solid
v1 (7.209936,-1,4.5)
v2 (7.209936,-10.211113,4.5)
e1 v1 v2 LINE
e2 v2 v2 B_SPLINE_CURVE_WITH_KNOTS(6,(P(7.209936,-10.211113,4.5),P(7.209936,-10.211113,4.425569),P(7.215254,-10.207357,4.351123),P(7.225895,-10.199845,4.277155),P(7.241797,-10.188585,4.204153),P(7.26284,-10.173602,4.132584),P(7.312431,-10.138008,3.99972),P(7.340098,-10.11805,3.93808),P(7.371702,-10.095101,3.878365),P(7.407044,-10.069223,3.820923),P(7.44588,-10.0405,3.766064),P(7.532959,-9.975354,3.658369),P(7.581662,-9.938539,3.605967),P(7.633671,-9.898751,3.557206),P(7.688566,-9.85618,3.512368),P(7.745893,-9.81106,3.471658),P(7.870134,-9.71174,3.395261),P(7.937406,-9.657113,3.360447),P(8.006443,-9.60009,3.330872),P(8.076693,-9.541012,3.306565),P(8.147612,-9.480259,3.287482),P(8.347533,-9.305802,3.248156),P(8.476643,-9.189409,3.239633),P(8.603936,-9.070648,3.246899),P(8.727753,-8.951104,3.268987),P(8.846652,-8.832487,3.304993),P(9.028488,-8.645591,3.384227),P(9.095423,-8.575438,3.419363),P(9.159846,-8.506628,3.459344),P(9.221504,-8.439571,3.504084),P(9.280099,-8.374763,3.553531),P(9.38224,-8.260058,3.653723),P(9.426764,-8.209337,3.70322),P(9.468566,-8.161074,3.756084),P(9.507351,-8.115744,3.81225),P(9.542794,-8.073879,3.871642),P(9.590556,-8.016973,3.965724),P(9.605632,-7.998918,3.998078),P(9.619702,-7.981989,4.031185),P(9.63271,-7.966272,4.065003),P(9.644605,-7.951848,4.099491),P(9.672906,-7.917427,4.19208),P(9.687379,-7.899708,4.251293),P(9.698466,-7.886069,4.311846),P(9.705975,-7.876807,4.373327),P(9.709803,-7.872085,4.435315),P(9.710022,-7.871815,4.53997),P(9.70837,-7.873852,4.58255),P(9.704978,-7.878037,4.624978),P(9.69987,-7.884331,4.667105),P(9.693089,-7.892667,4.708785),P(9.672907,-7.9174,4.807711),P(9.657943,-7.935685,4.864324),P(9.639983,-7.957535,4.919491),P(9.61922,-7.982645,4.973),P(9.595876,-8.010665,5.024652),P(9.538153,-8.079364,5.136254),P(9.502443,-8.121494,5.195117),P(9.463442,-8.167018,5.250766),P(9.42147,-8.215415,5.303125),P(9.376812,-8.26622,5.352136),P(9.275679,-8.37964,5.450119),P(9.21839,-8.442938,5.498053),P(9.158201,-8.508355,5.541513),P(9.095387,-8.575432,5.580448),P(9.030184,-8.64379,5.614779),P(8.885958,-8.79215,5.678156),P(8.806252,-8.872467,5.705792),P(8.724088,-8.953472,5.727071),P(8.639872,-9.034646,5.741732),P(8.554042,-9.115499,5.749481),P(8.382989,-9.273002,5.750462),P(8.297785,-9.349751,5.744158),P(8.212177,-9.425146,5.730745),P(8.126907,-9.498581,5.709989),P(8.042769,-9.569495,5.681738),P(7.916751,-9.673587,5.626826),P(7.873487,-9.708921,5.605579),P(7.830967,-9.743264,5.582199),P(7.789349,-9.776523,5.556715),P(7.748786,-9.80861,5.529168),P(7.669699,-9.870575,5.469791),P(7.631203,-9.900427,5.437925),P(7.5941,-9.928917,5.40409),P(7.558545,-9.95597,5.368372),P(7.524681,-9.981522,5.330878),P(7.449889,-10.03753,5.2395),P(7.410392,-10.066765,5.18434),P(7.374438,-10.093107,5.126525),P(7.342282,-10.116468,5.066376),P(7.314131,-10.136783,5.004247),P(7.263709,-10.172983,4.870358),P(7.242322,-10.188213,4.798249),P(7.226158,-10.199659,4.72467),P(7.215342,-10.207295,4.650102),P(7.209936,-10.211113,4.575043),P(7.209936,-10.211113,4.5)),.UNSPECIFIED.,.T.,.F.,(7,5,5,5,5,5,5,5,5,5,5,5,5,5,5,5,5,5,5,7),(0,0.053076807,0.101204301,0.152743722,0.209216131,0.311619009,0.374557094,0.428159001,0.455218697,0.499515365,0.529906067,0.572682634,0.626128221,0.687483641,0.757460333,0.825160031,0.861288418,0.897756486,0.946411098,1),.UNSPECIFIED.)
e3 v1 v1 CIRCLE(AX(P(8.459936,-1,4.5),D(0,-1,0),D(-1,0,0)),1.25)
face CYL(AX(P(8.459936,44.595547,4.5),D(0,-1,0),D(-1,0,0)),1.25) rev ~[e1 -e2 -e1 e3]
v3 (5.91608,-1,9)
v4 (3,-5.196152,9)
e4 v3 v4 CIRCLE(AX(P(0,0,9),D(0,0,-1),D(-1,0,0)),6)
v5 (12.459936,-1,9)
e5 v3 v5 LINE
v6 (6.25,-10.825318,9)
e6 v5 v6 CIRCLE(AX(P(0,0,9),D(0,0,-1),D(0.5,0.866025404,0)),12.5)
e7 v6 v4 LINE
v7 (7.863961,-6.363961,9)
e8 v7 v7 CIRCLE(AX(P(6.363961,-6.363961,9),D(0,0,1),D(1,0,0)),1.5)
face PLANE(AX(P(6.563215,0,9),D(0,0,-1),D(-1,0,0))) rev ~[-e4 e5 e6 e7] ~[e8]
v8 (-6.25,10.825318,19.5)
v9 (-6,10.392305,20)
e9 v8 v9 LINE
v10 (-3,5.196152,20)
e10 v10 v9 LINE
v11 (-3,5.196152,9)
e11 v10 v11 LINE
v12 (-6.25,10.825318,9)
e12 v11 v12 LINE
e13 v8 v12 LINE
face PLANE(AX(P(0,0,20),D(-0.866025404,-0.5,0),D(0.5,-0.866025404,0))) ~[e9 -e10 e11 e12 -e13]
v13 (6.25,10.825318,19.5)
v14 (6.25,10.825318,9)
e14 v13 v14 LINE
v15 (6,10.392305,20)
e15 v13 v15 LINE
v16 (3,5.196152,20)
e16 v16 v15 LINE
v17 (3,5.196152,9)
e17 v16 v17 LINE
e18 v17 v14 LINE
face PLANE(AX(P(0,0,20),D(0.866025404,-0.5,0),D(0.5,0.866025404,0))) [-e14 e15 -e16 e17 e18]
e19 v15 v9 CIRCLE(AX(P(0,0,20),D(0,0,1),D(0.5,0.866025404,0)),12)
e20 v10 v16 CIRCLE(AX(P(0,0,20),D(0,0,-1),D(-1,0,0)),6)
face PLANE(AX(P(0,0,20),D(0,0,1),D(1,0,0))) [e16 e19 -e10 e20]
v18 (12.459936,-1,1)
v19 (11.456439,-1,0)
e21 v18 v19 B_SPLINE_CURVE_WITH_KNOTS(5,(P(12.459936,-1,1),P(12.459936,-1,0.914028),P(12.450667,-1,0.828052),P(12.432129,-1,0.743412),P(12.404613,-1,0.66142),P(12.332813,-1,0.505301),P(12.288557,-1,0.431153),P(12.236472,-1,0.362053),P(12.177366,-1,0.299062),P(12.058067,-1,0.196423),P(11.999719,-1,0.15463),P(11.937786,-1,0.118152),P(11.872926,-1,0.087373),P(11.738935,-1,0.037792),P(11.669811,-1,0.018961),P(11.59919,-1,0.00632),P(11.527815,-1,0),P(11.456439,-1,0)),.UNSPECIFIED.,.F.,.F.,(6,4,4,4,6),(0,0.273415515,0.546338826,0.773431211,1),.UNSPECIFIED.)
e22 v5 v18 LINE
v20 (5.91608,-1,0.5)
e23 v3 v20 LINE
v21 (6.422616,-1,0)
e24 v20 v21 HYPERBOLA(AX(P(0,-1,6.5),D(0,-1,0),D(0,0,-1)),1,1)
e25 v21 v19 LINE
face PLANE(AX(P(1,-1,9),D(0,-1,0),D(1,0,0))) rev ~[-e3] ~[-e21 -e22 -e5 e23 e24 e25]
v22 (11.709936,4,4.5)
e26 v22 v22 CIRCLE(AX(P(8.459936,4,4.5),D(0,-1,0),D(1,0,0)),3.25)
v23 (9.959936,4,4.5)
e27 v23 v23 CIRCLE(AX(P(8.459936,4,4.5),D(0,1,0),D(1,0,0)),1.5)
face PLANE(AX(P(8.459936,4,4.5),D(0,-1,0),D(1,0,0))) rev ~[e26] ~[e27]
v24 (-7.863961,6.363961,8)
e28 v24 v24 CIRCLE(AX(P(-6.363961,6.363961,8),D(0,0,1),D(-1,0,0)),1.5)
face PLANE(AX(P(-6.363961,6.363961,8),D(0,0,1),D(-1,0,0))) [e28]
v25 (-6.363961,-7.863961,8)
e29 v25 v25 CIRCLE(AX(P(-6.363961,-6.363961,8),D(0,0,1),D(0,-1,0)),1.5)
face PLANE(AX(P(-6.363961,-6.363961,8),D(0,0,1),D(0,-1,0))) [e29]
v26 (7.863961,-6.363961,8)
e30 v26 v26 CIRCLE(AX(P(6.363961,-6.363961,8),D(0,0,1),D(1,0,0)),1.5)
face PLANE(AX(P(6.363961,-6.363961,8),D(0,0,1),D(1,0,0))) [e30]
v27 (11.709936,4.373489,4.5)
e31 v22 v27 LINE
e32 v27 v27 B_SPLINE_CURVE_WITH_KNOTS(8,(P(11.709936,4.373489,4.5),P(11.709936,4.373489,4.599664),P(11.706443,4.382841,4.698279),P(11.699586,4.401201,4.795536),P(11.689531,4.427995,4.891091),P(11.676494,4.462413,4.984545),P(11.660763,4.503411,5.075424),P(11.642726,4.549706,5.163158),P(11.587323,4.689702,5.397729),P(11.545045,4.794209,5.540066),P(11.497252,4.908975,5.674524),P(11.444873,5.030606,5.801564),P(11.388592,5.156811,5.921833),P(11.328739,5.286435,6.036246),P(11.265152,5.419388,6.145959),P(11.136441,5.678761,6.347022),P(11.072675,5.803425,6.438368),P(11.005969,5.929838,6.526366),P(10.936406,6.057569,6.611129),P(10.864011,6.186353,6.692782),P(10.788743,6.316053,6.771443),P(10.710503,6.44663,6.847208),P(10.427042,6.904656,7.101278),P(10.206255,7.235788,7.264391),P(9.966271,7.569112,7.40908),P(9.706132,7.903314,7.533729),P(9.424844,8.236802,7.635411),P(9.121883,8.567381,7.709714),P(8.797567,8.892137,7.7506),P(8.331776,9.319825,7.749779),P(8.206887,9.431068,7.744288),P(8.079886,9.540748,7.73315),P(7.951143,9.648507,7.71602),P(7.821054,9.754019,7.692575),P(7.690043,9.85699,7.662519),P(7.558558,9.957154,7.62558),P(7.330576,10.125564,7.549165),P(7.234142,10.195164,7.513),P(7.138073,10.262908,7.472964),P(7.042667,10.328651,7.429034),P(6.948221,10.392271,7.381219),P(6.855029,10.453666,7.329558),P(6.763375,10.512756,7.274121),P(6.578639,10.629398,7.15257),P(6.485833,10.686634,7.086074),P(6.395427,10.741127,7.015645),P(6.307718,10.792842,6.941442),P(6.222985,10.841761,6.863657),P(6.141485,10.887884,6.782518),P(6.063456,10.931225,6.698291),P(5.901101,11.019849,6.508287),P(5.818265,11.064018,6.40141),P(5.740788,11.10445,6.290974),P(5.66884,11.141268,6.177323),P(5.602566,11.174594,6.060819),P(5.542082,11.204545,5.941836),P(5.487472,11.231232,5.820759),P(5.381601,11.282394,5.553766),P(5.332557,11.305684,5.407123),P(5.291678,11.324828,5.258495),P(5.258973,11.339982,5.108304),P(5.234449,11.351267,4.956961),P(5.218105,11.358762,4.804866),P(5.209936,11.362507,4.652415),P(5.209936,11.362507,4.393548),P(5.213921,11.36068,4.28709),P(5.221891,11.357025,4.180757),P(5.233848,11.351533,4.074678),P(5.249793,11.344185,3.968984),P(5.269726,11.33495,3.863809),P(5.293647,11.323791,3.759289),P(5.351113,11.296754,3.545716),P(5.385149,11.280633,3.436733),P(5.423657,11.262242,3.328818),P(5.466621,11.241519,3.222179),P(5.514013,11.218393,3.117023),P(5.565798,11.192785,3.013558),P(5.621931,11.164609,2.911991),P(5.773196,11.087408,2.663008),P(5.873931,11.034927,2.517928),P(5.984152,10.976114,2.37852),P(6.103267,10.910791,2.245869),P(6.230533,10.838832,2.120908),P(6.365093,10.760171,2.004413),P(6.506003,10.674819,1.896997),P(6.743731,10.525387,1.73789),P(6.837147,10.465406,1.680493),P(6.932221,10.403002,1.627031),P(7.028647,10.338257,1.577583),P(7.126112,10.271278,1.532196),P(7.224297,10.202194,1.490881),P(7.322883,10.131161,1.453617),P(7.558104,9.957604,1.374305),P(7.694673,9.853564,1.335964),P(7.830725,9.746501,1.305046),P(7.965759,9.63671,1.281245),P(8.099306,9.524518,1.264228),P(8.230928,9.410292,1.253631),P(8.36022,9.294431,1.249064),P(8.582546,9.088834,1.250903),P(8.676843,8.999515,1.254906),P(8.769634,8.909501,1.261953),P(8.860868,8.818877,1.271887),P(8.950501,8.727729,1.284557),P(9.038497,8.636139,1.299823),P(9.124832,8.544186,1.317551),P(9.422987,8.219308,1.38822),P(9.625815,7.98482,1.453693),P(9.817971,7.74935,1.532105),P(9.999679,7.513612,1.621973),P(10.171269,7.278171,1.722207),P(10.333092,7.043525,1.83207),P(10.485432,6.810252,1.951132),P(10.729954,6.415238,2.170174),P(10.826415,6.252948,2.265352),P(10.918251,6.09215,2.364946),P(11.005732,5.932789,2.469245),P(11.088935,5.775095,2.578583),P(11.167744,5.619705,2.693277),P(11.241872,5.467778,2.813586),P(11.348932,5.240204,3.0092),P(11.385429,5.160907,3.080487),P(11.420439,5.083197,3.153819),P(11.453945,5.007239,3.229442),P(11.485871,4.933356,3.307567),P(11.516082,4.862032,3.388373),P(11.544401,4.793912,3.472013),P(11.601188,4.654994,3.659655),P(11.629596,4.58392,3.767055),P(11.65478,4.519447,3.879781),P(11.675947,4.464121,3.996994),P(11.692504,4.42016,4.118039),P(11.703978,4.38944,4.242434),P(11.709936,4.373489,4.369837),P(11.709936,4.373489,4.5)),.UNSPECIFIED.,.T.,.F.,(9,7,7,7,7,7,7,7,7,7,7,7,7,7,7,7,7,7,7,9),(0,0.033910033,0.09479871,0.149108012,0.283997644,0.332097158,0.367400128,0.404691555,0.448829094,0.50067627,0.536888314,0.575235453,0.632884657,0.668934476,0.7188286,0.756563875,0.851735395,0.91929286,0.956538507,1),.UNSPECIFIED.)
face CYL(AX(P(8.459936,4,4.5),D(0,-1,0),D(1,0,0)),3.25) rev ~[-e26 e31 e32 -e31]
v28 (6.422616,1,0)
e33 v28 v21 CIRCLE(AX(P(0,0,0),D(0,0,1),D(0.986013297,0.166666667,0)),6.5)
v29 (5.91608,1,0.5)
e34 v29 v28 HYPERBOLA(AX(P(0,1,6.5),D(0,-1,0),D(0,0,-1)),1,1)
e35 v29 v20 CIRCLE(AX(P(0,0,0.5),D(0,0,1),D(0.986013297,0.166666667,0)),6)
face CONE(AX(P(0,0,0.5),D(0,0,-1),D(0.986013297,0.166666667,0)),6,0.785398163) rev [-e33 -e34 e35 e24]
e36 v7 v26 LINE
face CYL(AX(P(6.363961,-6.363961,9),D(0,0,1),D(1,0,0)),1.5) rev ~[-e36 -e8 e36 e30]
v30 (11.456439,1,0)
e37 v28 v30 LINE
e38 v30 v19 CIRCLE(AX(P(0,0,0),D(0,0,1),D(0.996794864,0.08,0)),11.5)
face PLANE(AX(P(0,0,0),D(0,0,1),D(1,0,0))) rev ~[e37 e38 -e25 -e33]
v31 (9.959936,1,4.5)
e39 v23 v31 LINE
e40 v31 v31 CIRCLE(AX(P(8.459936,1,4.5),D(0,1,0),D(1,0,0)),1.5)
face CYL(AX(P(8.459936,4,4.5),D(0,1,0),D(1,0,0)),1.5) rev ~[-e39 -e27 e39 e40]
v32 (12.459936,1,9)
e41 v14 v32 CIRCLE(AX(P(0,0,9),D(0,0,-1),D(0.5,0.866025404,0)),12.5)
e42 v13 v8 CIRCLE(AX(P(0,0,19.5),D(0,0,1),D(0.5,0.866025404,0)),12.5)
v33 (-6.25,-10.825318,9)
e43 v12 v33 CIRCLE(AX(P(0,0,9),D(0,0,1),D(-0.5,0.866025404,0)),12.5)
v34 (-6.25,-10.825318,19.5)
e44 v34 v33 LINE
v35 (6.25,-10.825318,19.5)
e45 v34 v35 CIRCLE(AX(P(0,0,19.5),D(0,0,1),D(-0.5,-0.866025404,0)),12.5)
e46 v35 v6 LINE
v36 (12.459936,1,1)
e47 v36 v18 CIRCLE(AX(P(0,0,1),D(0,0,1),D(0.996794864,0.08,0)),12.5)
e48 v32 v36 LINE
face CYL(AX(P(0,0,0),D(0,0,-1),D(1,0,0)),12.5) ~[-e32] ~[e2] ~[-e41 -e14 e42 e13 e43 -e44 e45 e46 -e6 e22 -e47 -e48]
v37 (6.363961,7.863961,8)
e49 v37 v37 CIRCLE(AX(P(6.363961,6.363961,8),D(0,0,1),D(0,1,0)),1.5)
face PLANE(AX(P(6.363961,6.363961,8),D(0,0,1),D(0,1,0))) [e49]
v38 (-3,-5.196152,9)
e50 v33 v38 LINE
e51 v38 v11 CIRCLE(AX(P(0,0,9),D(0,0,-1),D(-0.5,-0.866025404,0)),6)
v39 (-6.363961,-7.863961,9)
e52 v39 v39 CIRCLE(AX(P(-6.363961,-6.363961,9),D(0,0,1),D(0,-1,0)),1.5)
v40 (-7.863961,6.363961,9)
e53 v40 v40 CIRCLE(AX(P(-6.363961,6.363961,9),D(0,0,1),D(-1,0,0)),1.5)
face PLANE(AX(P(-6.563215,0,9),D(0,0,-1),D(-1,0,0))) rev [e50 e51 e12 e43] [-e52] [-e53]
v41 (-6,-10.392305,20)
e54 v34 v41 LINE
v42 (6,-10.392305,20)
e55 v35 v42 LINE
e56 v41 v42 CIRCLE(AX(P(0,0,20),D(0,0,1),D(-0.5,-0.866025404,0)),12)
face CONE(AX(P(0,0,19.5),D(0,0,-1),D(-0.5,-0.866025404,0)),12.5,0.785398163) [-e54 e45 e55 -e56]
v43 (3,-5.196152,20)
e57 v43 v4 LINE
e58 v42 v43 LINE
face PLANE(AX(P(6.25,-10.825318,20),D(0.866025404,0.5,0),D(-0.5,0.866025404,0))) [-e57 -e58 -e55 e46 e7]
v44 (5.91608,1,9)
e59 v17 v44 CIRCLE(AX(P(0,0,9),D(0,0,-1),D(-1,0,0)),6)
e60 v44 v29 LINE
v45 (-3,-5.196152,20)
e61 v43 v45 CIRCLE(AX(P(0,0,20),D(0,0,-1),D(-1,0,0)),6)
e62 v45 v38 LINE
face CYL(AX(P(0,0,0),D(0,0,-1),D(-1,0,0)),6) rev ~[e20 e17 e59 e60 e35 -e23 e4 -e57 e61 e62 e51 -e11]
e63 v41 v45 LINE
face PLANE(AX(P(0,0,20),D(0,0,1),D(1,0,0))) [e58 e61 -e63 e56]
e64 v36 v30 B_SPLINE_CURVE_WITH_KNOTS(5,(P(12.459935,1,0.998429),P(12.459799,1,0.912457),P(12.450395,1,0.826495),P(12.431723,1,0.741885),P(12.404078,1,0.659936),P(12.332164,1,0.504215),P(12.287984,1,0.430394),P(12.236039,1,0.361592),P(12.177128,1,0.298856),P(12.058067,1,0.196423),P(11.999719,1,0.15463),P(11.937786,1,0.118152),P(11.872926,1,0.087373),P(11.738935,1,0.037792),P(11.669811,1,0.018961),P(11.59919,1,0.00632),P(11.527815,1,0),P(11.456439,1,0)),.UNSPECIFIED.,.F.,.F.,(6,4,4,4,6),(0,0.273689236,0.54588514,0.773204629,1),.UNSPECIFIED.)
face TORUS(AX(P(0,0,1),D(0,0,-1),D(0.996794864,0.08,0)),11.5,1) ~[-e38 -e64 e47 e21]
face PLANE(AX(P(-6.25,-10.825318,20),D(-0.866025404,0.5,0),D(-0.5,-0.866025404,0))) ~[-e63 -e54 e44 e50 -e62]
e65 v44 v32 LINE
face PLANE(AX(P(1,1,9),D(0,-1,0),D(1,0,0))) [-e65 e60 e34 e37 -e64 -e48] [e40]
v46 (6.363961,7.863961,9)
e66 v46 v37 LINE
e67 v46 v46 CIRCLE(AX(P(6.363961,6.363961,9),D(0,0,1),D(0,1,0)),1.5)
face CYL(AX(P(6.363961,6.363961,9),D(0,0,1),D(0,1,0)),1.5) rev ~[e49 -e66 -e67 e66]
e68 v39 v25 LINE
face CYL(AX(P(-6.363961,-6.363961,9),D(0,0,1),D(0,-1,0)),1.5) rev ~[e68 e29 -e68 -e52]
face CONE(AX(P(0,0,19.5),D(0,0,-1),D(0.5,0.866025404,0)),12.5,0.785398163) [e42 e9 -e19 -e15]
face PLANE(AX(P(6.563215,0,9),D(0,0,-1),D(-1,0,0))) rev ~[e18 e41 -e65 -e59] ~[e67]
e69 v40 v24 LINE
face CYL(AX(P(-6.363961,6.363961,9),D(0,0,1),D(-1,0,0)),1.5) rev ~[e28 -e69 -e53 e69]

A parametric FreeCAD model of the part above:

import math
import FreeCAD as App
import Part
import Sketcher
from FreeCAD import Vector
Q = App.Units.Quantity


def edges_at(feature, points):
    """Names of the edges that pass closest to the given points."""
    edges = feature.Shape.Edges
    near = lambda p: min(range(len(edges)), key=lambda i: edges[i].distToShape(Part.Vertex(*p))[0])
    return sorted({f"Edge{near(p) + 1}" for p in points})

doc = App.newDocument("Part")
body = doc.addObject("PartDesign::Body", "Body")

sketch1 = body.newObject("Sketcher::SketchObject", "Sketch")
sketch1.AttachmentSupport = (doc.getObject("XY_Plane"), [""])
sketch1.MapMode = "FlatFace"
sketch1.addGeometry(Part.Circle(Vector(0, 0, 0), Vector(0, 0, 1), 12), False)
sketch1.addConstraint([
    Sketcher.Constraint("Coincident", 0, 3, -1, 1),
    Sketcher.Constraint("Diameter", 0, Q("25 mm")),
])
pad1 = body.newObject("PartDesign::Pad", "Pad")
pad1.Profile = sketch1
pad1.Length = 20

sketch2 = body.newObject("Sketcher::SketchObject", "Sketch001")
sketch2.AttachmentSupport = (doc.getObject("XY_Plane"), [""])
sketch2.MapMode = "FlatFace"
sketch2.AttachmentOffset = App.Placement(Vector(0, 0, 20), App.Rotation())
sketch2.addGeometry([
    Part.LineSegment(Vector(6, 11, 0), Vector(0, 0, 0)),
    Part.LineSegment(Vector(0, 0, 0), Vector(6, -11, 0)),
    Part.ArcOfCircle(Part.Circle(Vector(0, 0, 0), Vector(0, 0, 1), 12), math.radians(-60), math.radians(60)),
], False)
sketch2.addConstraint([
    Sketcher.Constraint("Coincident", 0, 2, 1, 1),
    Sketcher.Constraint("Coincident", 1, 2, 2, 1),
    Sketcher.Constraint("Coincident", 2, 2, 0, 1),
    Sketcher.Constraint("Coincident", 2, 3, -1, 1),
    Sketcher.Constraint("Coincident", 0, 2, -1, 1),
    Sketcher.Constraint("Vertical", 1, 2, 2, 2),
    Sketcher.Constraint("Radius", 2, Q("12.5 mm")),
    Sketcher.Constraint("Angle", 0, Q("-120 deg")),
])
pocket1 = body.newObject("PartDesign::Pocket", "Pocket")
pocket1.Profile = sketch2
pocket1.Length = 11

sketch3 = body.newObject("Sketcher::SketchObject", "Sketch002")
sketch3.AttachmentSupport = (doc.getObject("XY_Plane"), [""])
sketch3.MapMode = "FlatFace"
sketch3.addGeometry(Part.Circle(Vector(0, 0, 0), Vector(0, 0, 1), 6), False)
sketch3.addConstraint([
    Sketcher.Constraint("Coincident", 0, 3, -1, 1),
    Sketcher.Constraint("Diameter", 0, Q("12 mm")),
])
pocket2 = body.newObject("PartDesign::Pocket", "Pocket001")
pocket2.Profile = sketch3
pocket2.Type = "ThroughAll"
pocket2.Reversed = True
doc.recompute()

mirrored = body.newObject("PartDesign::Mirrored", "Mirrored")
mirrored.Originals = [pocket1]
mirrored.MirrorPlane = (doc.getObject("YZ_Plane"), [""])
body.Tip = mirrored

sketch4 = body.newObject("Sketcher::SketchObject", "Sketch003")
sketch4.AttachmentSupport = (doc.getObject("XY_Plane"), [""])
sketch4.MapMode = "FlatFace"
sketch4.AttachmentOffset = App.Placement(Vector(0, 0, 9), App.Rotation())
sketch4.addGeometry([
    Part.LineSegment(Vector(1, 1, 0), Vector(1, -1, 0)),
    Part.LineSegment(Vector(1, -1, 0), Vector(13, -1, 0)),
    Part.LineSegment(Vector(13, -1, 0), Vector(13, 1, 0)),
    Part.LineSegment(Vector(13, 1, 0), Vector(1, 1, 0)),
], False)
sketch4.addConstraint([
    Sketcher.Constraint("Coincident", 0, 2, 1, 1),
    Sketcher.Constraint("Coincident", 1, 2, 2, 1),
    Sketcher.Constraint("Coincident", 2, 2, 3, 1),
    Sketcher.Constraint("Coincident", 3, 2, 0, 1),
    Sketcher.Constraint("Vertical", 0),
    Sketcher.Constraint("Horizontal", 1),
    Sketcher.Constraint("Vertical", 2),
    Sketcher.Constraint("Horizontal", 3),
    Sketcher.Constraint("DistanceX", 1, 1, 1, 2, Q("12 mm")),
    Sketcher.Constraint("DistanceY", 0, 2, 0, 1, Q("2 mm")),
    Sketcher.Constraint("DistanceX", -1, 1, 0, 2, Q("1 mm")),
    Sketcher.Constraint("DistanceY", 0, 2, -1, 1, Q("1 mm")),
])
pocket3 = body.newObject("PartDesign::Pocket", "Pocket002")
pocket3.Profile = sketch4
pocket3.Type = "ThroughAll"

sketch5 = body.newObject("Sketcher::SketchObject", "Sketch004")
sketch5.AttachmentSupport = (doc.getObject("XZ_Plane"), [""])
sketch5.MapMode = "FlatFace"
sketch5.AttachmentOffset = App.Placement(Vector(0, 0, -4), App.Rotation())
sketch5.addGeometry(Part.Circle(Vector(8.5, 4.5, 0), Vector(0, 0, 1), 3.2), False)
sketch5.addConstraint([
    Sketcher.Constraint("Diameter", 0, Q("6.5 mm")),
    Sketcher.Constraint("DistanceY", -1, 1, 0, 3, Q("4.5 mm")),
    Sketcher.Constraint("DistanceX", -1, 1, 0, 3, Q("8.459936 mm")),
])
pocket4 = body.newObject("PartDesign::Pocket", "Pocket003")
pocket4.Profile = sketch5
pocket4.Type = "ThroughAll"

sketch6 = body.newObject("Sketcher::SketchObject", "Sketch005")
sketch6.AttachmentSupport = (doc.getObject("XZ_Plane"), [""])
sketch6.MapMode = "FlatFace"
sketch6.AttachmentOffset = App.Placement(Vector(0, 0, -4), App.Rotation())
sketch6.addGeometry(Part.Circle(Vector(8.5, 4.5, 0), Vector(0, 0, 1), 1.2), False)
sketch6.addConstraint([
    Sketcher.Constraint("Diameter", 0, Q("2.5 mm")),
    Sketcher.Constraint("DistanceY", -1, 1, 0, 3, Q("4.5 mm")),
    Sketcher.Constraint("DistanceX", -1, 1, 0, 3, Q("8.459936 mm")),
])
doc.recompute()
hole = body.newObject("PartDesign::Hole", "Hole")
hole.Profile = sketch6
hole.ThreadType = "None"
hole.Diameter = 2.5
hole.DepthType = "ThroughAll"
hole.Reversed = True
doc.recompute()

fillet = body.newObject("PartDesign::Fillet", "Fillet")
fillet.Base = (hole, edges_at(hole, [(-12.5, 0, 0)]))
fillet.Radius = 1

sketch7 = body.newObject("Sketcher::SketchObject", "Sketch006")
sketch7.AttachmentSupport = (doc.getObject("XY_Plane"), [""])
sketch7.MapMode = "FlatFace"
sketch7.AttachmentOffset = App.Placement(Vector(0, 0, 9), App.Rotation())
sketch7.addGeometry(Part.Circle(Vector(6.4, -6.4, 0), Vector(0, 0, 1), 1.5), False)
sketch7.addConstraint([
    Sketcher.Constraint("Diameter", 0, Q("3 mm")),
    Sketcher.Constraint("DistanceX", -1, 1, 0, 3, Q("6.363961 mm")),
    Sketcher.Constraint("DistanceY", 0, 3, -1, 1, Q("6.363961 mm")),
])
pocket5 = body.newObject("PartDesign::Pocket", "Pocket004")
pocket5.Profile = sketch7
pocket5.Length = 1
doc.recompute()

chamfer = body.newObject("PartDesign::Chamfer", "Chamfer")
chamfer.Base = (pocket5, edges_at(pocket5, [(0, -12.5, 20), (0, 12.5, 20)]))
chamfer.Size = 0.5

sketch8 = body.newObject("Sketcher::SketchObject", "Sketch007")
sketch8.AttachmentSupport = (doc.getObject("XZ_Plane"), [""])
sketch8.MapMode = "FlatFace"
sketch8.AttachmentOffset = App.Placement(Vector(0, 0, -4), App.Rotation())
sketch8.addGeometry(Part.Circle(Vector(8.5, 4.5, 0), Vector(0, 0, 1), 1.5), False)
sketch8.addConstraint([
    Sketcher.Constraint("Diameter", 0, Q("3 mm")),
    Sketcher.Constraint("DistanceY", -1, 1, 0, 3, Q("4.5 mm")),
    Sketcher.Constraint("DistanceX", -1, 1, 0, 3, Q("8.459936 mm")),
])
pocket6 = body.newObject("PartDesign::Pocket", "Pocket005")
pocket6.Profile = sketch8
pocket6.Length = 3
pocket6.Reversed = True
doc.recompute()

polarpattern = body.newObject("PartDesign::PolarPattern", "PolarPattern")
polarpattern.Originals = [pocket5]
polarpattern.Axis = (doc.getObject("Z_Axis"), [""])
polarpattern.Angle = 360
polarpattern.Occurrences = 4
body.Tip = polarpattern
doc.recompute()

chamfer2 = body.newObject("PartDesign::Chamfer", "Chamfer001")
chamfer2.Base = (polarpattern, edges_at(polarpattern, [(-6, 0, 0)]))
chamfer2.Size = 0.5

doc.recompute()
